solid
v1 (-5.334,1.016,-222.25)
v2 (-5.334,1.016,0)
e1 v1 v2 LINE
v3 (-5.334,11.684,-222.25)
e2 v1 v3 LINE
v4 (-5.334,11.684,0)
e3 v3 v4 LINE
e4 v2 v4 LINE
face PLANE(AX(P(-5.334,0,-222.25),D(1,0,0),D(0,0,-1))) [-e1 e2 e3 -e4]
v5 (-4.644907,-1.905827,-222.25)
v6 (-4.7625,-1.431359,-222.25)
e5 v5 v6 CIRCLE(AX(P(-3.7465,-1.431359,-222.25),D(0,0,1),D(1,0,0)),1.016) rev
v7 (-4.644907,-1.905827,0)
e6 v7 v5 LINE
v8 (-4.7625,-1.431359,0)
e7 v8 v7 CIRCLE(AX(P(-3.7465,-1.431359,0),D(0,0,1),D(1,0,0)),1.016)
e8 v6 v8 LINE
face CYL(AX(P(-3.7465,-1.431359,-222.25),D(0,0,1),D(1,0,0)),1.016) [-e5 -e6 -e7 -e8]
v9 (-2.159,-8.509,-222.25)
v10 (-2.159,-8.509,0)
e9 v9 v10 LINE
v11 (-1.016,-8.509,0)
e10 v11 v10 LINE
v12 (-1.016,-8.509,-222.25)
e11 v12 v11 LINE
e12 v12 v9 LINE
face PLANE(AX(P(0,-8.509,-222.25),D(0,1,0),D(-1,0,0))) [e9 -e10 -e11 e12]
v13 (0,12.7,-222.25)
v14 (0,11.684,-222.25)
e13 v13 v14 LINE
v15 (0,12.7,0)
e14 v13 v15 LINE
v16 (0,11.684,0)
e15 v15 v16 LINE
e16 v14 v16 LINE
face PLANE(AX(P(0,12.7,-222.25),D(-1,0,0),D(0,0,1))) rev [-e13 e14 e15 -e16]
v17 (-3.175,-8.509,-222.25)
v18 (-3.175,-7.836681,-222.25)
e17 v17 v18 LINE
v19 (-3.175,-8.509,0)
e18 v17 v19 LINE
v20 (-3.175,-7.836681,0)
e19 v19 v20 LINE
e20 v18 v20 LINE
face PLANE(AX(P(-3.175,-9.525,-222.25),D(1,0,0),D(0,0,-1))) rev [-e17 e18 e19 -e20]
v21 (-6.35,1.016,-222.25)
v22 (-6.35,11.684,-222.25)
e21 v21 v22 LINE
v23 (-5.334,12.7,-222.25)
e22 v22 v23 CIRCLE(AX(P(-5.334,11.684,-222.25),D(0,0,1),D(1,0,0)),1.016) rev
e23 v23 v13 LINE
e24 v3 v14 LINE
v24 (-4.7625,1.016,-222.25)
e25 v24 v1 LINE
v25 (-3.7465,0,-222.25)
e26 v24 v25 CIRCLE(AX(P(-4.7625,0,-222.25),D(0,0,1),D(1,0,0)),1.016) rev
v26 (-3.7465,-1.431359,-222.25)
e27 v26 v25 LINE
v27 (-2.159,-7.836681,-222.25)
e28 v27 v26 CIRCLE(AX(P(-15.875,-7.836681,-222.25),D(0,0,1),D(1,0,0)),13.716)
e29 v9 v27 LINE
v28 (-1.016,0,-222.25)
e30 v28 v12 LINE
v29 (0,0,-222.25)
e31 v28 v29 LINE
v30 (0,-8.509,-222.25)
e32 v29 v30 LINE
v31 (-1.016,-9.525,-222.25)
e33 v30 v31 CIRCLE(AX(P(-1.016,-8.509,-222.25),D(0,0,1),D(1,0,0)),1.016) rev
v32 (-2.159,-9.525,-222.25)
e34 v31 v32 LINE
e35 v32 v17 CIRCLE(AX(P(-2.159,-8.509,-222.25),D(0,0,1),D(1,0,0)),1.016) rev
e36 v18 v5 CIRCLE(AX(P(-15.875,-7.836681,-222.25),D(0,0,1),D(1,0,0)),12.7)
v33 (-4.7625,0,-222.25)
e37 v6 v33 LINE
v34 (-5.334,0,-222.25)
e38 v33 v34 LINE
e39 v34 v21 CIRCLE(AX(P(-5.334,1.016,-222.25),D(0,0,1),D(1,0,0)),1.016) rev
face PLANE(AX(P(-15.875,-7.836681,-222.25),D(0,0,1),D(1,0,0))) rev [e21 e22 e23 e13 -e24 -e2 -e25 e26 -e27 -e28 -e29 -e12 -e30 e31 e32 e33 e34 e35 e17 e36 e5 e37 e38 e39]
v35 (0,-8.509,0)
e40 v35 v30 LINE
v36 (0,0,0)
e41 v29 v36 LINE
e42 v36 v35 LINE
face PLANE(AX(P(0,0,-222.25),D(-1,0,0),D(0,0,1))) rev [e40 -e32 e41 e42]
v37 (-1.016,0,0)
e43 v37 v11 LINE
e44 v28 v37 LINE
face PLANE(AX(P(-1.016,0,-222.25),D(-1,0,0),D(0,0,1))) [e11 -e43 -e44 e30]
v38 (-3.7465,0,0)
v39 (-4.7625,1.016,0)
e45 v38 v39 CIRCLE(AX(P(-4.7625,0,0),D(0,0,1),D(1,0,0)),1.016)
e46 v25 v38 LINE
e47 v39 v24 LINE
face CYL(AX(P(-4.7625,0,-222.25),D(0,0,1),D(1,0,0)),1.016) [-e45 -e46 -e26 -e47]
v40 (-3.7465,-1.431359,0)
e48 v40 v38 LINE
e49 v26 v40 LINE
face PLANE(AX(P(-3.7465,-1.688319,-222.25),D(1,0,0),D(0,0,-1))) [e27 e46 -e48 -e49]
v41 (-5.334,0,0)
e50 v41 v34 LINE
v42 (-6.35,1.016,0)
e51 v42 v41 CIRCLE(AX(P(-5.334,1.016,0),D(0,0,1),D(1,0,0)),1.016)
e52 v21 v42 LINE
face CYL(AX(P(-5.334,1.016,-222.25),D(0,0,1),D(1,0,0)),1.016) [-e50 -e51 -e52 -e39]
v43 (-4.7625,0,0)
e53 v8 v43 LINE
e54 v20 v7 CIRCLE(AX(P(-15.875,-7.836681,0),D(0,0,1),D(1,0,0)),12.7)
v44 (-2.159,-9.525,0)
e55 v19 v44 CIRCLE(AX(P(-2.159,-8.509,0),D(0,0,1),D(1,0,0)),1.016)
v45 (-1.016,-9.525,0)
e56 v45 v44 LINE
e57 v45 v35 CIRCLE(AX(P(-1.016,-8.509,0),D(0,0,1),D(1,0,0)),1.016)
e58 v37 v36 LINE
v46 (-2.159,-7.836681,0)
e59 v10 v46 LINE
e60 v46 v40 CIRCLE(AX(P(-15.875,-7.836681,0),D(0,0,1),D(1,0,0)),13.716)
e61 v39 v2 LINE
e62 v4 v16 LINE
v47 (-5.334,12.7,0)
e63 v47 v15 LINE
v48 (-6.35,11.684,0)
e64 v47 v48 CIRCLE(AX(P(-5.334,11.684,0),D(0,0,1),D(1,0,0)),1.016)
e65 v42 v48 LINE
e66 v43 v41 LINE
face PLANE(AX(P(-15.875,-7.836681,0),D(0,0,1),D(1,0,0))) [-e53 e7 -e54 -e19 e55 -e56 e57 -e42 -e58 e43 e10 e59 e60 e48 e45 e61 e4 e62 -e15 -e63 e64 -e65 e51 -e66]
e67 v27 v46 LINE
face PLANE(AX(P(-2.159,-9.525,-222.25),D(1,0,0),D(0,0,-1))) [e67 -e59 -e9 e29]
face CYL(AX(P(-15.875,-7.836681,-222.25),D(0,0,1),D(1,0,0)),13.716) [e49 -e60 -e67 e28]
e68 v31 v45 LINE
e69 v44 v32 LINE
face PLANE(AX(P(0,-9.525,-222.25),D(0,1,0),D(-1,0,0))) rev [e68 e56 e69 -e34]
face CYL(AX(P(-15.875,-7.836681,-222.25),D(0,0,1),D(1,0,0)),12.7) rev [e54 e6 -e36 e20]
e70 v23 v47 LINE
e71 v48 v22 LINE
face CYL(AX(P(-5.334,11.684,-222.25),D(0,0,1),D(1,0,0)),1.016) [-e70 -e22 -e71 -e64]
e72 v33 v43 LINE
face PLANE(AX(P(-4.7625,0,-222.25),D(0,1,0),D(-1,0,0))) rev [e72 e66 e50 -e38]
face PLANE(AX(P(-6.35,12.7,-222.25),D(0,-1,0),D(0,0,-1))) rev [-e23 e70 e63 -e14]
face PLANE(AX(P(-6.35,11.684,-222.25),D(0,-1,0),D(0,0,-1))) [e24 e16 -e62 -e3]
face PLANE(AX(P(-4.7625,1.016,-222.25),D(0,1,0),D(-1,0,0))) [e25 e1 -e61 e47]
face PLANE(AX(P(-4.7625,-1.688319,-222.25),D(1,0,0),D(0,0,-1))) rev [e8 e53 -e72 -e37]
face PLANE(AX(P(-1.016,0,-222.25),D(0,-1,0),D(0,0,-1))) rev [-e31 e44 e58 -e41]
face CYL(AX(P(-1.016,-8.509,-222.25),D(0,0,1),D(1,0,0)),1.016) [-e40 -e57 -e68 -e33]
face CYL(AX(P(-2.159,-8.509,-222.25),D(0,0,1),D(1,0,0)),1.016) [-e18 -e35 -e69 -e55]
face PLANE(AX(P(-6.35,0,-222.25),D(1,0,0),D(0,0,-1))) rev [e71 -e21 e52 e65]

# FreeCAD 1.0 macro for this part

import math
import FreeCAD as App
import Part
import Sketcher
from FreeCAD import Vector
Q = App.Units.Quantity


def edges_at(feature, points):
    """Names of the edges that pass closest to the given points."""
    edges = feature.Shape.Edges
    near = lambda p: min(range(len(edges)), key=lambda i: edges[i].distToShape(Part.Vertex(*p))[0])
    return sorted({f"Edge{near(p) + 1}" for p in points})

doc = App.newDocument("Part")
body = doc.addObject("PartDesign::Body", "Body")

# Sketch on XY plane
sketch1 = body.newObject("Sketcher::SketchObject", "Sketch")
sketch1.AttachmentSupport = (doc.getObject("XY_Plane"), [""])
sketch1.MapMode = "FlatFace"
sketch1.addGeometry([
    Part.LineSegment(Vector(0, -9.5, 0), Vector(0, 0, 0)),  # 0
    Part.LineSegment(Vector(0, 0, 0), Vector(-1, 0, 0)),  # 1
    Part.LineSegment(Vector(-1, 0, 0), Vector(-1, -8.5, 0)),  # 2
    Part.LineSegment(Vector(-1, -8.5, 0), Vector(-2.2, -8.5, 0)),  # 3
    Part.LineSegment(Vector(-2.2, -8.5, 0), Vector(-2.2, -7.8, 0)),  # 4
    Part.ArcOfCircle(Part.Circle(Vector(-15.9, -7.8, 0), Vector(0, 0, 1), 13.7), math.radians(0), math.radians(28)),  # 5
    Part.LineSegment(Vector(-3.7, -1.4, 0), Vector(-3.7, 1, 0)),  # 6
    Part.LineSegment(Vector(-3.7, 1, 0), Vector(-5.3, 1, 0)),  # 7
    Part.LineSegment(Vector(-5.3, 1, 0), Vector(-5.3, 11.7, 0)),  # 8
    Part.LineSegment(Vector(-5.3, 11.7, 0), Vector(0, 11.7, 0)),  # 9
    Part.LineSegment(Vector(0, 11.7, 0), Vector(0, 12.7, 0)),  # 10
    Part.LineSegment(Vector(0, 12.7, 0), Vector(-6.3, 12.7, 0)),  # 11
    Part.LineSegment(Vector(-6.3, 12.7, 0), Vector(-6.3, 0, 0)),  # 12
    Part.LineSegment(Vector(-6.3, 0, 0), Vector(-4.8, 0, 0)),  # 13
    Part.LineSegment(Vector(-4.8, 0, 0), Vector(-4.8, -1.7, 0)),  # 14
    Part.ArcOfCircle(Part.Circle(Vector(-15.9, -7.8, 0), Vector(0, 0, 1), 12.7), math.radians(0), math.radians(29)),  # 15
    Part.LineSegment(Vector(-3.2, -7.8, 0), Vector(-3.2, -9.5, 0)),  # 16
    Part.LineSegment(Vector(-3.2, -9.5, 0), Vector(0, -9.5, 0)),  # 17
], False)
sketch1.addConstraint([
    Sketcher.Constraint("Coincident", 0, 2, 1, 1),
    Sketcher.Constraint("Coincident", 1, 2, 2, 1),
    Sketcher.Constraint("Coincident", 2, 2, 3, 1),
    Sketcher.Constraint("Coincident", 3, 2, 4, 1),
    Sketcher.Constraint("Tangent", 4, 2, 5, 1),
    Sketcher.Constraint("Coincident", 5, 2, 6, 1),
    Sketcher.Constraint("Coincident", 6, 2, 7, 1),
    Sketcher.Constraint("Coincident", 7, 2, 8, 1),
    Sketcher.Constraint("Coincident", 8, 2, 9, 1),
    Sketcher.Constraint("Coincident", 9, 2, 10, 1),
    Sketcher.Constraint("Coincident", 10, 2, 11, 1),
    Sketcher.Constraint("Coincident", 11, 2, 12, 1),
    Sketcher.Constraint("Coincident", 12, 2, 13, 1),
    Sketcher.Constraint("Coincident", 13, 2, 14, 1),
    Sketcher.Constraint("Coincident", 14, 2, 15, 2),
    Sketcher.Constraint("Tangent", 15, 1, 16, 1),
    Sketcher.Constraint("Coincident", 16, 2, 17, 1),
    Sketcher.Constraint("Coincident", 17, 2, 0, 1),
    Sketcher.Constraint("Vertical", 0),
    Sketcher.Constraint("Horizontal", 1),
    Sketcher.Constraint("Vertical", 2),
    Sketcher.Constraint("Horizontal", 3),
    Sketcher.Constraint("Vertical", 4),
    Sketcher.Constraint("Vertical", 6),
    Sketcher.Constraint("Horizontal", 7),
    Sketcher.Constraint("Vertical", 8),
    Sketcher.Constraint("Horizontal", 9),
    Sketcher.Constraint("Vertical", 10),
    Sketcher.Constraint("Horizontal", 11),
    Sketcher.Constraint("Vertical", 12),
    Sketcher.Constraint("Horizontal", 13),
    Sketcher.Constraint("Vertical", 14),
    Sketcher.Constraint("Vertical", 16),
    Sketcher.Constraint("Horizontal", 17),
    Sketcher.Constraint("Coincident", 0, 2, -1, 1),
    Sketcher.Constraint("Coincident", 15, 3, 5, 3),
    Sketcher.Constraint("PointOnObject", 9, 2, -2),
    Sketcher.Constraint("PointOnObject", 12, 2, -1),
    Sketcher.Constraint("Equal", 7, 13),
    Sketcher.Constraint("Equal", 1, 10),
    Sketcher.Constraint("Equal", 14, 16),
    Sketcher.Constraint("Radius", 15, Q("0.5 in")),
    Sketcher.Constraint("Radius", 5, Q("0.54 in")),
    Sketcher.Constraint("DistanceY", 12, 2, 12, 1, Q("0.5 in")),
    Sketcher.Constraint("DistanceX", 1, 2, 1, 1, Q("0.04 in")),
    Sketcher.Constraint("DistanceX", 9, 1, 9, 2, Q("0.21 in")),
    Sketcher.Constraint("DistanceX", 11, 2, 11, 1, Q("0.25 in")),
    Sketcher.Constraint("DistanceY", 8, 1, 8, 2, Q("0.42 in")),
    Sketcher.Constraint("DistanceX", 3, 2, 3, 1, Q("0.045 in")),
    Sketcher.Constraint("DistanceX", 7, 2, 7, 1, Q("0.0625 in")),
    Sketcher.Constraint("DistanceY", 0, 1, 0, 2, Q("0.375 in")),
    Sketcher.Constraint("DistanceY", 2, 2, 2, 1, Q("0.335 in")),
])
pad1 = body.newObject("PartDesign::Pad", "Pad")
pad1.Profile = sketch1
pad1.Length = Q("8.75 in")
pad1.Reversed = True
doc.recompute()

fillet = body.newObject("PartDesign::Fillet", "Fillet")
fillet.Base = (pad1, edges_at(pad1, [
    (-3.747, 1.016, -111.125),
    (0, -9.525, -111.125),
    (-3.175, -9.525, -111.125),
    (-4.763, -1.688, -111.125),
    (-6.35, 0, -111.125),
    (-6.35, 12.7, -111.125),
]))
fillet.Radius = Q("0.04 in")

doc.recompute()
